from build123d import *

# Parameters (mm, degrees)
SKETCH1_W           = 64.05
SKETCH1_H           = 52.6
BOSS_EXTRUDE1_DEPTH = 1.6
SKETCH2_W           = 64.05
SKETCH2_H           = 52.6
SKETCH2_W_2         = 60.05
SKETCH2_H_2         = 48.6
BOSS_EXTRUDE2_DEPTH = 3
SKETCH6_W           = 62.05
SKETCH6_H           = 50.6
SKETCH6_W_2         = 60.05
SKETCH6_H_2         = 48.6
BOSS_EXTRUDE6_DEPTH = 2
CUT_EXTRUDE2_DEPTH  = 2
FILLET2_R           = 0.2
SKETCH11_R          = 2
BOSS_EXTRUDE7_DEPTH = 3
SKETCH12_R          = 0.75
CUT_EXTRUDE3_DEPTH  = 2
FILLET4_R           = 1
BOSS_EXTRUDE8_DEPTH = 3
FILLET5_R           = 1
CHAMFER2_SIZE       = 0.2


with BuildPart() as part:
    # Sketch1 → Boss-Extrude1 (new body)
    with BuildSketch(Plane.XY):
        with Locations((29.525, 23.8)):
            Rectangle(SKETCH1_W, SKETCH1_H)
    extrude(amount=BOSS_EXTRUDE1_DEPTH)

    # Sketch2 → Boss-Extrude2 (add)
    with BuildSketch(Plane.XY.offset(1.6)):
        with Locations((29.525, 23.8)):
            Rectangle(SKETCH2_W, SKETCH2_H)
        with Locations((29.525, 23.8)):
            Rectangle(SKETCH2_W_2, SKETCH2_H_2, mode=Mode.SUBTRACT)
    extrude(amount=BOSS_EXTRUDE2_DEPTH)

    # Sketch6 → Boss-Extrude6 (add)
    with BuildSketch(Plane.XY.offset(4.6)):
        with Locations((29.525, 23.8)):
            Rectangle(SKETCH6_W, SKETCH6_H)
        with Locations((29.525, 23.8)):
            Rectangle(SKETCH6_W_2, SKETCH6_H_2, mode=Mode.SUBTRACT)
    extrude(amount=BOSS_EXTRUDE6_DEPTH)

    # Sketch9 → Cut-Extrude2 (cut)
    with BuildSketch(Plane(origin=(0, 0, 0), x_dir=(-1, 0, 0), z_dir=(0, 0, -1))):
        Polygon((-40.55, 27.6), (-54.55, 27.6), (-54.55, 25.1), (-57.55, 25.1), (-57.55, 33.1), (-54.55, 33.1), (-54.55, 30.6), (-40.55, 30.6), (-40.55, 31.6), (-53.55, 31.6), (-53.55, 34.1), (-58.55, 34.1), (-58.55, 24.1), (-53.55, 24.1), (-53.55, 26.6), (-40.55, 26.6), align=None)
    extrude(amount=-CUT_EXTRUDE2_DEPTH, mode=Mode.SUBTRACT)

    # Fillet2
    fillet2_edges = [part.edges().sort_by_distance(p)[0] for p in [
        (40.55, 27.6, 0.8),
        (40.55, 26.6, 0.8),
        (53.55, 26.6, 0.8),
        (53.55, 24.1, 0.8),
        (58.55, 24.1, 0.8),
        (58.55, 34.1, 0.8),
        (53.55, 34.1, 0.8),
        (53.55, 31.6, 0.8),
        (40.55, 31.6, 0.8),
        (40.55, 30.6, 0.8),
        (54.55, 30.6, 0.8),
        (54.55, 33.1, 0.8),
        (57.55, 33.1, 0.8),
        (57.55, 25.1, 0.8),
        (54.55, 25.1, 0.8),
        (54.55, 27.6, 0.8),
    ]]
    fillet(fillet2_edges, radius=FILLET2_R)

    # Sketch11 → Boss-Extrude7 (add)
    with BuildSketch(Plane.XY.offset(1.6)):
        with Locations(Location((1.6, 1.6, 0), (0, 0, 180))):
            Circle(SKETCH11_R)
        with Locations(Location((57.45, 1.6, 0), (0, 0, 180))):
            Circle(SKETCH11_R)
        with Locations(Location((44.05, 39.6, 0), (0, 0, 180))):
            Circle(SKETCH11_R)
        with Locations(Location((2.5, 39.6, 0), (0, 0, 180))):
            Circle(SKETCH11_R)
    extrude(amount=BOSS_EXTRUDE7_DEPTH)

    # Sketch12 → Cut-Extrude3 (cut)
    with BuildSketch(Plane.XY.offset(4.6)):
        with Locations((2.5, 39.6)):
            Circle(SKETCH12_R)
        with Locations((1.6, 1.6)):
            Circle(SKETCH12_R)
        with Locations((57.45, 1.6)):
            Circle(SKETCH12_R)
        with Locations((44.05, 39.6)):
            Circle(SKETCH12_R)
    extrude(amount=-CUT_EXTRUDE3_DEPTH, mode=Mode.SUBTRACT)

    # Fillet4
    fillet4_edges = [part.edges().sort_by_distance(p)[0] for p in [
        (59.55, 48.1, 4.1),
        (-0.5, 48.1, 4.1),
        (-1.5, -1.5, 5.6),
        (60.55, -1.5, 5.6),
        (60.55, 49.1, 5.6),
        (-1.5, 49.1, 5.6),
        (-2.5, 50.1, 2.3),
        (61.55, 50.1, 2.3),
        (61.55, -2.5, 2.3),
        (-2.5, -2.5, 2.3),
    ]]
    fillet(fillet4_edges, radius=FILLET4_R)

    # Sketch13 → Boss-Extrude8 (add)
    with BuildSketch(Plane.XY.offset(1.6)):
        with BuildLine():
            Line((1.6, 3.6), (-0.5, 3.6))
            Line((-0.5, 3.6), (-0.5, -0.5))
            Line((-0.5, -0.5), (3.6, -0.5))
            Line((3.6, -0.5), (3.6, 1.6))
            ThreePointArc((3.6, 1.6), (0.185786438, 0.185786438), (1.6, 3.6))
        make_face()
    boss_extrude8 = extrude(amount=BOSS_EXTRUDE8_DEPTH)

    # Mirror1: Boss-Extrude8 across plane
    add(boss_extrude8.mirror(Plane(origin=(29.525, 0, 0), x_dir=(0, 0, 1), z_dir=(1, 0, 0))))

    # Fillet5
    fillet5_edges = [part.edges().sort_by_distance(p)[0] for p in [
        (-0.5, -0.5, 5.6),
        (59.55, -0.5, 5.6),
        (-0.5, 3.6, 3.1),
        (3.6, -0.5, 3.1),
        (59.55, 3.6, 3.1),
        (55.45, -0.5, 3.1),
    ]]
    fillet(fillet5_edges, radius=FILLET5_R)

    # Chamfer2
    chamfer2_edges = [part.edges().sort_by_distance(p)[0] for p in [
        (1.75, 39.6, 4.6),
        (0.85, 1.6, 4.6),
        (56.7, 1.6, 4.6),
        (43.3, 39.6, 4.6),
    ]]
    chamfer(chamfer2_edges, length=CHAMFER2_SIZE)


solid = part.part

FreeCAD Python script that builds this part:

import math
import FreeCAD as App
import Part
import Sketcher

V = App.Vector


def edges_at(feature, points):
    """Names of the edges that pass closest to the given points."""
    edges = feature.Shape.Edges
    near = lambda p: min(range(len(edges)), key=lambda i: edges[i].distToShape(Part.Vertex(*p))[0])
    return sorted({f"Edge{near(p) + 1}" for p in points})

doc = App.newDocument("Part")
body = doc.addObject("PartDesign::Body", "Body")

# Sketch on XY plane
sketch1 = body.newObject("Sketcher::SketchObject", "Sketch")
sketch1.AttachmentSupport = (doc.getObject("XY_Plane"), [""])
sketch1.MapMode = "FlatFace"
sketch1.addGeometry([
    Part.LineSegment(V(-2, 50, 0), V(-2, -2, 0)),
    Part.LineSegment(V(-2, -2, 0), V(62, -2, 0)),
    Part.LineSegment(V(62, -2, 0), V(62, 50, 0)),
    Part.LineSegment(V(62, 50, 0), V(-2, 50, 0)),
], False)
sketch1.addConstraint([
    Sketcher.Constraint("Coincident", 0, 2, 1, 1),
    Sketcher.Constraint("Coincident", 1, 2, 2, 1),
    Sketcher.Constraint("Coincident", 2, 2, 3, 1),
    Sketcher.Constraint("Coincident", 3, 2, 0, 1),
    Sketcher.Constraint("Vertical", 0),
    Sketcher.Constraint("Horizontal", 1),
    Sketcher.Constraint("Vertical", 2),
    Sketcher.Constraint("Horizontal", 3),
    Sketcher.Constraint("DistanceY", 0, 2, 0, 1, 52.6),
    Sketcher.Constraint("DistanceX", 1, 1, 1, 2, 64.05),
    Sketcher.Constraint("DistanceX", 0, 2, -1, 1, 2.5),
    Sketcher.Constraint("DistanceY", 0, 2, -1, 1, 2.5),
])
pad1 = body.newObject("PartDesign::Pad", "Pad")
pad1.Profile = sketch1
pad1.Length = 1.6

# Sketch on XY plane
sketch2 = body.newObject("Sketcher::SketchObject", "Sketch001")
sketch2.AttachmentSupport = (doc.getObject("XY_Plane"), [""])
sketch2.MapMode = "FlatFace"
sketch2.AttachmentOffset = App.Placement(V(0, 0, 1.6), App.Rotation())
sketch2.addGeometry([
    Part.LineSegment(V(-2, 50, 0), V(-2, -2, 0)),  # 0
    Part.LineSegment(V(-2, -2, 0), V(62, -2, 0)),  # 1
    Part.LineSegment(V(62, -2, 0), V(62, 50, 0)),  # 2
    Part.LineSegment(V(62, 50, 0), V(-2, 50, 0)),  # 3
    Part.LineSegment(V(60, 0, 0), V(0, 0, 0)),  # 4
    Part.LineSegment(V(0, 0, 0), V(0, 48, 0)),  # 5
    Part.LineSegment(V(0, 48, 0), V(60, 48, 0)),  # 6
    Part.LineSegment(V(60, 48, 0), V(60, 0, 0)),  # 7
], False)
sketch2.addConstraint([
    Sketcher.Constraint("Coincident", 0, 2, 1, 1),
    Sketcher.Constraint("Coincident", 1, 2, 2, 1),
    Sketcher.Constraint("Coincident", 2, 2, 3, 1),
    Sketcher.Constraint("Coincident", 3, 2, 0, 1),
    Sketcher.Constraint("Coincident", 4, 2, 5, 1),
    Sketcher.Constraint("Coincident", 5, 2, 6, 1),
    Sketcher.Constraint("Coincident", 6, 2, 7, 1),
    Sketcher.Constraint("Coincident", 7, 2, 4, 1),
    Sketcher.Constraint("Vertical", 0),
    Sketcher.Constraint("Horizontal", 1),
    Sketcher.Constraint("Vertical", 2),
    Sketcher.Constraint("Horizontal", 3),
    Sketcher.Constraint("Horizontal", 4),
    Sketcher.Constraint("Vertical", 5),
    Sketcher.Constraint("Horizontal", 6),
    Sketcher.Constraint("Vertical", 7),
    Sketcher.Constraint("DistanceY", 0, 2, 0, 1, 52.6),
    Sketcher.Constraint("DistanceY", 5, 1, 5, 2, 48.6),
    Sketcher.Constraint("DistanceX", 0, 2, 4, 2, 2.0),
    Sketcher.Constraint("DistanceY", 0, 2, 4, 2, 2.0),
    Sketcher.Constraint("DistanceX", 6, 2, 2, 2, 2.0),
    Sketcher.Constraint("DistanceX", 1, 1, 1, 2, 64.05),
    Sketcher.Constraint("DistanceX", 0, 2, -1, 1, 2.5),
    Sketcher.Constraint("DistanceY", 0, 2, -1, 1, 2.5),
])
pad2 = body.newObject("PartDesign::Pad", "Pad001")
pad2.Profile = sketch2
pad2.Length = 3

# Sketch on XY plane
sketch3 = body.newObject("Sketcher::SketchObject", "Sketch002")
sketch3.AttachmentSupport = (doc.getObject("XY_Plane"), [""])
sketch3.MapMode = "FlatFace"
sketch3.AttachmentOffset = App.Placement(V(0, 0, 4.6), App.Rotation())
sketch3.addGeometry([
    Part.LineSegment(V(-2, 49, 0), V(-2, -2, 0)),  # 0
    Part.LineSegment(V(-2, -2, 0), V(61, -2, 0)),  # 1
    Part.LineSegment(V(61, -2, 0), V(61, 49, 0)),  # 2
    Part.LineSegment(V(61, 49, 0), V(-2, 49, 0)),  # 3
    Part.LineSegment(V(60, 0, 0), V(0, 0, 0)),  # 4
    Part.LineSegment(V(0, 0, 0), V(0, 48, 0)),  # 5
    Part.LineSegment(V(0, 48, 0), V(60, 48, 0)),  # 6
    Part.LineSegment(V(60, 48, 0), V(60, 0, 0)),  # 7
], False)
sketch3.addConstraint([
    Sketcher.Constraint("Coincident", 0, 2, 1, 1),
    Sketcher.Constraint("Coincident", 1, 2, 2, 1),
    Sketcher.Constraint("Coincident", 2, 2, 3, 1),
    Sketcher.Constraint("Coincident", 3, 2, 0, 1),
    Sketcher.Constraint("Coincident", 4, 2, 5, 1),
    Sketcher.Constraint("Coincident", 5, 2, 6, 1),
    Sketcher.Constraint("Coincident", 6, 2, 7, 1),
    Sketcher.Constraint("Coincident", 7, 2, 4, 1),
    Sketcher.Constraint("Vertical", 0),
    Sketcher.Constraint("Horizontal", 1),
    Sketcher.Constraint("Vertical", 2),
    Sketcher.Constraint("Horizontal", 3),
    Sketcher.Constraint("Horizontal", 4),
    Sketcher.Constraint("Vertical", 5),
    Sketcher.Constraint("Horizontal", 6),
    Sketcher.Constraint("Vertical", 7),
    Sketcher.Constraint("DistanceY", 0, 2, 0, 1, 50.6),
    Sketcher.Constraint("DistanceY", 5, 1, 5, 2, 48.6),
    Sketcher.Constraint("DistanceX", 0, 2, 4, 2, 1.0),
    Sketcher.Constraint("DistanceY", 0, 2, 4, 2, 1.0),
    Sketcher.Constraint("DistanceX", 6, 2, 2, 2, 1.0),
    Sketcher.Constraint("DistanceX", 1, 1, 1, 2, 62.05),
    Sketcher.Constraint("DistanceX", 0, 2, -1, 1, 1.5),
    Sketcher.Constraint("DistanceY", 0, 2, -1, 1, 1.5),
])
pad3 = body.newObject("PartDesign::Pad", "Pad002")
pad3.Profile = sketch3
pad3.Length = 2

# Sketch on XY plane
sketch4 = body.newObject("Sketcher::SketchObject", "Sketch003")
sketch4.AttachmentSupport = (doc.getObject("XY_Plane"), [""])
sketch4.MapMode = "FlatFace"
sketch4.addGeometry([
    Part.LineSegment(V(40.5, 27.6, 0), V(54.5, 27.6, 0)),  # 0
    Part.LineSegment(V(54.5, 27.6, 0), V(54.5, 25.1, 0)),  # 1
    Part.LineSegment(V(54.5, 25.1, 0), V(57.5, 25.1, 0)),  # 2
    Part.LineSegment(V(57.5, 25.1, 0), V(57.5, 33.1, 0)),  # 3
    Part.LineSegment(V(57.5, 33.1, 0), V(54.5, 33.1, 0)),  # 4
    Part.LineSegment(V(54.5, 33.1, 0), V(54.5, 30.6, 0)),  # 5
    Part.LineSegment(V(54.5, 30.6, 0), V(40.5, 30.6, 0)),  # 6
    Part.LineSegment(V(40.5, 30.6, 0), V(40.5, 31.6, 0)),  # 7
    Part.LineSegment(V(40.5, 31.6, 0), V(53.5, 31.6, 0)),  # 8
    Part.LineSegment(V(53.5, 31.6, 0), V(53.5, 34.1, 0)),  # 9
    Part.LineSegment(V(53.5, 34.1, 0), V(58.5, 34.1, 0)),  # 10
    Part.LineSegment(V(58.5, 34.1, 0), V(58.5, 24.1, 0)),  # 11
    Part.LineSegment(V(58.5, 24.1, 0), V(53.5, 24.1, 0)),  # 12
    Part.LineSegment(V(53.5, 24.1, 0), V(53.5, 26.6, 0)),  # 13
    Part.LineSegment(V(53.5, 26.6, 0), V(40.5, 26.6, 0)),  # 14
    Part.LineSegment(V(40.5, 26.6, 0), V(40.5, 27.6, 0)),  # 15
], False)
sketch4.addConstraint([
    Sketcher.Constraint("Coincident", 0, 2, 1, 1),
    Sketcher.Constraint("Coincident", 1, 2, 2, 1),
    Sketcher.Constraint("Coincident", 2, 2, 3, 1),
    Sketcher.Constraint("Coincident", 3, 2, 4, 1),
    Sketcher.Constraint("Coincident", 4, 2, 5, 1),
    Sketcher.Constraint("Coincident", 5, 2, 6, 1),
    Sketcher.Constraint("Coincident", 6, 2, 7, 1),
    Sketcher.Constraint("Coincident", 7, 2, 8, 1),
    Sketcher.Constraint("Coincident", 8, 2, 9, 1),
    Sketcher.Constraint("Coincident", 9, 2, 10, 1),
    Sketcher.Constraint("Coincident", 10, 2, 11, 1),
    Sketcher.Constraint("Coincident", 11, 2, 12, 1),
    Sketcher.Constraint("Coincident", 12, 2, 13, 1),
    Sketcher.Constraint("Coincident", 13, 2, 14, 1),
    Sketcher.Constraint("Coincident", 14, 2, 15, 1),
    Sketcher.Constraint("Coincident", 15, 2, 0, 1),
    Sketcher.Constraint("Horizontal", 0),
    Sketcher.Constraint("Vertical", 1),
    Sketcher.Constraint("Horizontal", 2),
    Sketcher.Constraint("Vertical", 3),
    Sketcher.Constraint("Horizontal", 4),
    Sketcher.Constraint("Vertical", 5),
    Sketcher.Constraint("Horizontal", 6),
    Sketcher.Constraint("Vertical", 7),
    Sketcher.Constraint("Horizontal", 8),
    Sketcher.Constraint("Vertical", 9),
    Sketcher.Constraint("Horizontal", 10),
    Sketcher.Constraint("Vertical", 11),
    Sketcher.Constraint("Horizontal", 12),
    Sketcher.Constraint("Vertical", 13),
    Sketcher.Constraint("Horizontal", 14),
    Sketcher.Constraint("Vertical", 15),
    Sketcher.Constraint("Vertical", 1, 2, 4, 2),
    Sketcher.Constraint("Vertical", 9, 2, 12, 2),
    Sketcher.Constraint("Vertical", 7, 2, 14, 2),
    Sketcher.Constraint("Equal", 1, 5),
    Sketcher.Constraint("Equal", 5, 9),
    Sketcher.Constraint("Equal", 9, 13),
    Sketcher.Constraint("Equal", 7, 15),
    Sketcher.Constraint("DistanceX", 0, 1, 0, 2, 14.0),
    Sketcher.Constraint("DistanceX", 2, 1, 2, 2, 3.0),
    Sketcher.Constraint("DistanceX", 8, 1, 8, 2, 13.0),
    Sketcher.Constraint("DistanceX", 10, 1, 10, 2, 5.0),
    Sketcher.Constraint("DistanceY", 3, 1, 3, 2, 8.0),
    Sketcher.Constraint("DistanceY", 7, 1, 7, 2, 1.0),
    Sketcher.Constraint("DistanceY", 1, 2, 1, 1, 2.5),
    Sketcher.Constraint("DistanceY", -1, 1, 0, 2, 27.6),
    Sketcher.Constraint("DistanceX", -1, 1, 0, 2, 54.55),
])
pocket1 = body.newObject("PartDesign::Pocket", "Pocket")
pocket1.Profile = sketch4
pocket1.Length = 2
pocket1.Reversed = True
doc.recompute()

fillet = body.newObject("PartDesign::Fillet", "Fillet")
fillet.Base = (pocket1, edges_at(pocket1, [
    (40.55, 27.6, 0.8),
    (40.55, 26.6, 0.8),
    (53.55, 26.6, 0.8),
    (53.55, 24.1, 0.8),
    (58.55, 24.1, 0.8),
    (58.55, 34.1, 0.8),
    (53.55, 34.1, 0.8),
    (53.55, 31.6, 0.8),
    (40.55, 31.6, 0.8),
    (40.55, 30.6, 0.8),
    (54.55, 30.6, 0.8),
    (54.55, 33.1, 0.8),
    (57.55, 33.1, 0.8),
    (57.55, 25.1, 0.8),
    (54.55, 25.1, 0.8),
    (54.55, 27.6, 0.8),
]))
fillet.Radius = 0.2

# Sketch on XY plane
sketch5 = body.newObject("Sketcher::SketchObject", "Sketch004")
sketch5.AttachmentSupport = (doc.getObject("XY_Plane"), [""])
sketch5.MapMode = "FlatFace"
sketch5.AttachmentOffset = App.Placement(V(0, 0, 1.6), App.Rotation())
sketch5.addGeometry([
    Part.Circle(V(1.6, 1.6, 0), V(0, 0, 1), 2),
    Part.Circle(V(57.5, 1.6, 0), V(0, 0, 1), 2),
    Part.Circle(V(44, 39.6, 0), V(0, 0, 1), 2),
    Part.Circle(V(2.5, 39.6, 0), V(0, 0, 1), 2),
], False)
sketch5.addConstraint([
    Sketcher.Constraint("Equal", 0, 1),
    Sketcher.Constraint("Equal", 1, 2),
    Sketcher.Constraint("Equal", 2, 3),
    Sketcher.Constraint("Horizontal", 0, 3, 1, 3),
    Sketcher.Constraint("Horizontal", 2, 3, 3, 3),
    Sketcher.Constraint("Diameter", 0, 4.0),
    Sketcher.Constraint("DistanceY", 1, 3, 2, 3, 38.0),
    Sketcher.Constraint("DistanceX", -1, 1, 0, 3, 1.6),
    Sketcher.Constraint("DistanceY", -1, 1, 0, 3, 1.6),
    Sketcher.Constraint("DistanceX", -1, 1, 3, 3, 2.5),
    Sketcher.Constraint("DistanceX", 2, 3, 1, 3, 13.4),
    Sketcher.Constraint("DistanceX", -1, 1, 1, 3, 57.45),
])
pad4 = body.newObject("PartDesign::Pad", "Pad003")
pad4.Profile = sketch5
pad4.Length = 3

# Sketch on XY plane
sketch6 = body.newObject("Sketcher::SketchObject", "Sketch005")
sketch6.AttachmentSupport = (doc.getObject("XY_Plane"), [""])
sketch6.MapMode = "FlatFace"
sketch6.AttachmentOffset = App.Placement(V(0, 0, 4.6), App.Rotation())
sketch6.addGeometry([
    Part.Circle(V(2.5, 39.6, 0), V(0, 0, 1), 0.8),
    Part.Circle(V(1.6, 1.6, 0), V(0, 0, 1), 0.8),
    Part.Circle(V(57.5, 1.6, 0), V(0, 0, 1), 0.8),
    Part.Circle(V(44, 39.6, 0), V(0, 0, 1), 0.8),
], False)
sketch6.addConstraint([
    Sketcher.Constraint("Equal", 0, 1),
    Sketcher.Constraint("Equal", 1, 2),
    Sketcher.Constraint("Equal", 2, 3),
    Sketcher.Constraint("Horizontal", 1, 3, 2, 3),
    Sketcher.Constraint("Horizontal", 0, 3, 3, 3),
    Sketcher.Constraint("Diameter", 0, 1.5),
    Sketcher.Constraint("DistanceY", 1, 3, 0, 3, 38.0),
    Sketcher.Constraint("DistanceX", -1, 1, 0, 3, 2.5),
    Sketcher.Constraint("DistanceY", -1, 1, 0, 3, 39.6),
    Sketcher.Constraint("DistanceX", -1, 1, 1, 3, 1.6),
    Sketcher.Constraint("DistanceX", 3, 3, 2, 3, 13.4),
    Sketcher.Constraint("DistanceX", -1, 1, 2, 3, 57.45),
])
pocket2 = body.newObject("PartDesign::Pocket", "Pocket001")
pocket2.Profile = sketch6
pocket2.Length = 2
doc.recompute()

fillet2 = body.newObject("PartDesign::Fillet", "Fillet001")
fillet2.Base = (pocket2, edges_at(pocket2, [
    (59.55, 48.1, 4.1),
    (-0.5, 48.1, 4.1),
    (-1.5, -1.5, 5.6),
    (60.55, -1.5, 5.6),
    (60.55, 49.1, 5.6),
    (-1.5, 49.1, 5.6),
    (-2.5, 50.1, 2.3),
    (61.55, 50.1, 2.3),
    (61.55, -2.5, 2.3),
    (-2.5, -2.5, 2.3),
]))
fillet2.Radius = 1

# Sketch on XY plane
sketch7 = body.newObject("Sketcher::SketchObject", "Sketch006")
sketch7.AttachmentSupport = (doc.getObject("XY_Plane"), [""])
sketch7.MapMode = "FlatFace"
sketch7.AttachmentOffset = App.Placement(V(0, 0, 1.6), App.Rotation())
sketch7.addGeometry([
    Part.LineSegment(V(1.6, 3.6, 0), V(-0.5, 3.6, 0)),  # 0
    Part.LineSegment(V(-0.5, 3.6, 0), V(-0.5, -0.5, 0)),  # 1
    Part.LineSegment(V(-0.5, -0.5, 0), V(3.6, -0.5, 0)),  # 2
    Part.LineSegment(V(3.6, -0.5, 0), V(3.6, 1.6, 0)),  # 3
    Part.ArcOfCircle(Part.Circle(V(1.6, 1.6, 0), V(0, 0, 1), 2), math.radians(90), math.radians(360)),  # 4
], False)
sketch7.addConstraint([
    Sketcher.Constraint("Coincident", 0, 2, 1, 1),
    Sketcher.Constraint("Coincident", 1, 2, 2, 1),
    Sketcher.Constraint("Coincident", 2, 2, 3, 1),
    Sketcher.Constraint("Tangent", 3, 2, 4, 2),
    Sketcher.Constraint("Tangent", 4, 1, 0, 1),
    Sketcher.Constraint("Horizontal", 0),
    Sketcher.Constraint("Vertical", 1),
    Sketcher.Constraint("Horizontal", 2),
    Sketcher.Constraint("Vertical", 3),
    Sketcher.Constraint("Equal", 2, 1),
    Sketcher.Constraint("Radius", 4, 2.0),
    Sketcher.Constraint("DistanceX", 0, 2, 0, 1, 2.1),
    Sketcher.Constraint("DistanceX", -1, 1, 4, 3, 1.6),
    Sketcher.Constraint("DistanceY", -1, 1, 4, 3, 1.6),
])
pad5 = body.newObject("PartDesign::Pad", "Pad004")
pad5.Profile = sketch7
pad5.Length = 3
doc.recompute()

datumplane = body.newObject("PartDesign::Plane", "DatumPlane")
datumplane.AttachmentSupport = (doc.getObject("YZ_Plane"), [""])
datumplane.MapMode = "FlatFace"
datumplane.AttachmentOffset = App.Placement(V(0, 0, 29.525), App.Rotation())
mirrored = body.newObject("PartDesign::Mirrored", "Mirrored")
mirrored.Originals = [pad5]
mirrored.MirrorPlane = (datumplane, [""])
body.Tip = mirrored
doc.recompute()

fillet3 = body.newObject("PartDesign::Fillet", "Fillet002")
fillet3.Base = (mirrored, edges_at(mirrored, [
    (-0.5, -0.5, 5.6),
    (59.55, -0.5, 5.6),
    (-0.5, 3.6, 3.1),
    (3.6, -0.5, 3.1),
    (59.55, 3.6, 3.1),
    (55.45, -0.5, 3.1),
]))
fillet3.Radius = 1
doc.recompute()

chamfer = body.newObject("PartDesign::Chamfer", "Chamfer")
chamfer.Base = (fillet3, edges_at(fillet3, [
    (1.75, 39.6, 4.6),
    (0.85, 1.6, 4.6),
    (56.7, 1.6, 4.6),
    (43.3, 39.6, 4.6),
]))
chamfer.Size = 0.2

doc.recompute()
